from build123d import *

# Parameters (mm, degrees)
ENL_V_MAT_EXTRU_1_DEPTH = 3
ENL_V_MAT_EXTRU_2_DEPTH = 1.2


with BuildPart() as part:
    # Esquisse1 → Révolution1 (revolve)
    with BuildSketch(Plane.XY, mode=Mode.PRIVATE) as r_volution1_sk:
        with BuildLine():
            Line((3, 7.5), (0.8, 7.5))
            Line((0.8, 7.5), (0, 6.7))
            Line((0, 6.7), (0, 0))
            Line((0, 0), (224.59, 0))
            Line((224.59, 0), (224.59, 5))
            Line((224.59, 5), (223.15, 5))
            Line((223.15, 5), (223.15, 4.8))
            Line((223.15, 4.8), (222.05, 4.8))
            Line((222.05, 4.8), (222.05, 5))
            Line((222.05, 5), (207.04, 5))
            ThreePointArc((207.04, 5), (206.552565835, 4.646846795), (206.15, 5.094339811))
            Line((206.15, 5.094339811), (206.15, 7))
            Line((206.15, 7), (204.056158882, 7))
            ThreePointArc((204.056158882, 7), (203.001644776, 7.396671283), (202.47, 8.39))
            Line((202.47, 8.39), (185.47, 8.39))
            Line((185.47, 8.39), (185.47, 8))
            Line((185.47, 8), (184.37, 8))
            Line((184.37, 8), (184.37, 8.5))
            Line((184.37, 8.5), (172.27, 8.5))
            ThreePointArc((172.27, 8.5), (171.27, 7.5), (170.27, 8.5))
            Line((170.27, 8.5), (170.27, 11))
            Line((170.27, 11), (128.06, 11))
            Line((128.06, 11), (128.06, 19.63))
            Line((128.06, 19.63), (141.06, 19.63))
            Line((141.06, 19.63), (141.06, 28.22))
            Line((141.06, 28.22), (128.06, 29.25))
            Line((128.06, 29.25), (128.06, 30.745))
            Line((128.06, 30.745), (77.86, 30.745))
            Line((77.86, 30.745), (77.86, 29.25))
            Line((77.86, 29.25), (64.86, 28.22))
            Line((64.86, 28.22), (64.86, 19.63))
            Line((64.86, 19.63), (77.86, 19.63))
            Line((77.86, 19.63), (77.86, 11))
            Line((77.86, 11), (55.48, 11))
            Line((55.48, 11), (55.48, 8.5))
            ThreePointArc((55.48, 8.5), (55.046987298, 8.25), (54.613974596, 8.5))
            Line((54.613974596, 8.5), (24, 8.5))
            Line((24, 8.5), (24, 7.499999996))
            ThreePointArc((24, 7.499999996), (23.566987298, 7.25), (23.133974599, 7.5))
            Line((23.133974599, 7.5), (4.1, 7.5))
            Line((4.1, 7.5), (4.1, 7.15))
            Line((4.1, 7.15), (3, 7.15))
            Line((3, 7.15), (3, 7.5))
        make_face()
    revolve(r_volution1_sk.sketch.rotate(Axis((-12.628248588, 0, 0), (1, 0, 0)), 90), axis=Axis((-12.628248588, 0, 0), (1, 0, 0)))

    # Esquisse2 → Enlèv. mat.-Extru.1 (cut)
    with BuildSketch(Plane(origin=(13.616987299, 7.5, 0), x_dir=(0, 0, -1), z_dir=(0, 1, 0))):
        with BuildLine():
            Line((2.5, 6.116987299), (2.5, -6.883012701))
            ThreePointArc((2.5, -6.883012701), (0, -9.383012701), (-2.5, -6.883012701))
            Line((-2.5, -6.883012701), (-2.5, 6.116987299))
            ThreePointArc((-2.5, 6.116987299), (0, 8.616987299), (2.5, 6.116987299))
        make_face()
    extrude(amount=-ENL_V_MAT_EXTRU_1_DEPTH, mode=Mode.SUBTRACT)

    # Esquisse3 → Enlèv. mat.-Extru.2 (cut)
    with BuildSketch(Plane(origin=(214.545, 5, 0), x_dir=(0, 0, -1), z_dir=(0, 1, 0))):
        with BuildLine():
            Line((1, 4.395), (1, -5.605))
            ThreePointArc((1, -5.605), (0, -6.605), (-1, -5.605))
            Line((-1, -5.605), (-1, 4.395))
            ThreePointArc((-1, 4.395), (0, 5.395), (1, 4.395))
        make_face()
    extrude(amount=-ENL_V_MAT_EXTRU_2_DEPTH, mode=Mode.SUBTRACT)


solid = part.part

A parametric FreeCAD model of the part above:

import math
import FreeCAD as App
import Part
import Sketcher

V = App.Vector
Q = App.Units.Quantity

doc = App.newDocument("Part")
body = doc.addObject("PartDesign::Body", "Body")

sketch1 = body.newObject("Sketcher::SketchObject", "Sketch")
sketch1.AttachmentSupport = (doc.getObject("XY_Plane"), [""])
sketch1.MapMode = "FlatFace"
sketch1.addGeometry(Part.LineSegment(V(3, 7.5, 0), V(0.8, 7.5, 0)), False)
sketch1.addGeometry(Part.LineSegment(V(0.8, 7.5, 0), V(0, 6.7, 0)), False)
sketch1.addGeometry(Part.LineSegment(V(0, 6.7, 0), V(0, 0, 0)), False)
sketch1.addGeometry(Part.LineSegment(V(0, 0, 0), V(224.59, 0, 0)), False)
sketch1.addGeometry(Part.LineSegment(V(224.59, 0, 0), V(224.59, 5, 0)), False)
sketch1.addGeometry(Part.LineSegment(V(224.59, 5, 0), V(223.15, 5, 0)), False)
sketch1.addGeometry(Part.LineSegment(V(223.15, 5, 0), V(223.15, 4.8, 0)), False)
sketch1.addGeometry(Part.LineSegment(V(223.15, 4.8, 0), V(222.05, 4.8, 0)), False)
sketch1.addGeometry(Part.LineSegment(V(222.05, 4.8, 0), V(222.05, 5, 0)), False)
sketch1.addGeometry(Part.LineSegment(V(222.05, 5, 0), V(207.04, 5, 0)), False)
sketch1.addGeometry(Part.ArcOfCircle(Part.Circle(V(206.6, 5.09434, 0), V(0, 0, 1), 0.45), math.radians(-180), math.radians(-12.101492)), False)
sketch1.addGeometry(Part.LineSegment(V(206.15, 5.09434, 0), V(206.15, 7, 0)), False)
sketch1.addGeometry(Part.LineSegment(V(206.15, 7, 0), V(204.056159, 7, 0)), False)
sketch1.addGeometry(Part.ArcOfCircle(Part.Circle(V(204.056159, 8.6, 0), V(0, 0, 1), 1.6), math.radians(-172.458169), math.radians(-90)), False)
sketch1.addGeometry(Part.LineSegment(V(202.47, 8.39, 0), V(185.47, 8.39, 0)), False)
sketch1.addGeometry(Part.LineSegment(V(185.47, 8.39, 0), V(185.47, 8, 0)), False)
sketch1.addGeometry(Part.LineSegment(V(185.47, 8, 0), V(184.37, 8, 0)), False)
sketch1.addGeometry(Part.LineSegment(V(184.37, 8, 0), V(184.37, 8.5, 0)), False)
sketch1.addGeometry(Part.LineSegment(V(184.37, 8.5, 0), V(172.27, 8.5, 0)), False)
sketch1.addGeometry(Part.ArcOfCircle(Part.Circle(V(171.27, 8.5, 0), V(0, 0, 1), 1), math.radians(180), math.radians(360)), False)
sketch1.addGeometry(Part.LineSegment(V(170.27, 8.5, 0), V(170.27, 11, 0)), False)
sketch1.addGeometry(Part.LineSegment(V(170.27, 11, 0), V(128.06, 11, 0)), False)
sketch1.addGeometry(Part.LineSegment(V(128.06, 11, 0), V(128.06, 19.63, 0)), False)
sketch1.addGeometry(Part.LineSegment(V(128.06, 19.63, 0), V(141.06, 19.63, 0)), False)
sketch1.addGeometry(Part.LineSegment(V(141.06, 19.63, 0), V(141.06, 28.22, 0)), False)
sketch1.addGeometry(Part.LineSegment(V(141.06, 28.22, 0), V(128.06, 29.25, 0)), False)
sketch1.addGeometry(Part.LineSegment(V(128.06, 29.25, 0), V(128.06, 30.745, 0)), False)
sketch1.addGeometry(Part.LineSegment(V(128.06, 30.745, 0), V(77.86, 30.745, 0)), False)
sketch1.addGeometry(Part.LineSegment(V(77.86, 30.745, 0), V(77.86, 29.25, 0)), False)
sketch1.addGeometry(Part.LineSegment(V(77.86, 29.25, 0), V(64.86, 28.22, 0)), False)
sketch1.addGeometry(Part.LineSegment(V(64.86, 28.22, 0), V(64.86, 19.63, 0)), False)
sketch1.addGeometry(Part.LineSegment(V(64.86, 19.63, 0), V(77.86, 19.63, 0)), False)
sketch1.addGeometry(Part.LineSegment(V(77.86, 19.63, 0), V(77.86, 11, 0)), False)
sketch1.addGeometry(Part.LineSegment(V(77.86, 11, 0), V(55.48, 11, 0)), False)
sketch1.addGeometry(Part.LineSegment(V(55.48, 11, 0), V(55.48, 8.5, 0)), False)
sketch1.addGeometry(Part.ArcOfCircle(Part.Circle(V(55.046987, 8.75, 0), V(0, 0, 1), 0.5), math.radians(-150), math.radians(-30)), False)
sketch1.addGeometry(Part.LineSegment(V(54.613975, 8.5, 0), V(24, 8.5, 0)), False)
sketch1.addGeometry(Part.LineSegment(V(24, 8.5, 0), V(24, 7.5, 0)), False)
sketch1.addGeometry(Part.ArcOfCircle(Part.Circle(V(23.566987, 7.75, 0), V(0, 0, 1), 0.5), math.radians(-150), math.radians(-30.000001)), False)
sketch1.addGeometry(Part.LineSegment(V(23.133975, 7.5, 0), V(4.1, 7.5, 0)), False)
sketch1.addGeometry(Part.LineSegment(V(4.1, 7.5, 0), V(4.1, 7.15, 0)), False)
sketch1.addGeometry(Part.LineSegment(V(4.1, 7.15, 0), V(3, 7.15, 0)), False)
sketch1.addGeometry(Part.LineSegment(V(3, 7.15, 0), V(3, 7.5, 0)), False)
sketch1.addConstraint(Sketcher.Constraint("Coincident", 0, 2, 1, 1))
sketch1.addConstraint(Sketcher.Constraint("Coincident", 1, 2, 2, 1))
sketch1.addConstraint(Sketcher.Constraint("Coincident", 2, 2, 3, 1))
sketch1.addConstraint(Sketcher.Constraint("Coincident", 3, 2, 4, 1))
sketch1.addConstraint(Sketcher.Constraint("Coincident", 4, 2, 5, 1))
sketch1.addConstraint(Sketcher.Constraint("Coincident", 5, 2, 6, 1))
sketch1.addConstraint(Sketcher.Constraint("Coincident", 6, 2, 7, 1))
sketch1.addConstraint(Sketcher.Constraint("Coincident", 7, 2, 8, 1))
sketch1.addConstraint(Sketcher.Constraint("Coincident", 8, 2, 9, 1))
sketch1.addConstraint(Sketcher.Constraint("Coincident", 9, 2, 10, 2))
sketch1.addConstraint(Sketcher.Constraint("Tangent", 10, 1, 11, 1))
sketch1.addConstraint(Sketcher.Constraint("Coincident", 11, 2, 12, 1))
sketch1.addConstraint(Sketcher.Constraint("Tangent", 12, 2, 13, 2))
sketch1.addConstraint(Sketcher.Constraint("Coincident", 13, 1, 14, 1))
sketch1.addConstraint(Sketcher.Constraint("Coincident", 14, 2, 15, 1))
sketch1.addConstraint(Sketcher.Constraint("Coincident", 15, 2, 16, 1))
sketch1.addConstraint(Sketcher.Constraint("Coincident", 16, 2, 17, 1))
sketch1.addConstraint(Sketcher.Constraint("Coincident", 17, 2, 18, 1))
sketch1.addConstraint(Sketcher.Constraint("Coincident", 18, 2, 19, 2))
sketch1.addConstraint(Sketcher.Constraint("Tangent", 19, 1, 20, 1))
sketch1.addConstraint(Sketcher.Constraint("Coincident", 20, 2, 21, 1))
sketch1.addConstraint(Sketcher.Constraint("Coincident", 21, 2, 22, 1))
sketch1.addConstraint(Sketcher.Constraint("Coincident", 22, 2, 23, 1))
sketch1.addConstraint(Sketcher.Constraint("Coincident", 23, 2, 24, 1))
sketch1.addConstraint(Sketcher.Constraint("Coincident", 24, 2, 25, 1))
sketch1.addConstraint(Sketcher.Constraint("Coincident", 25, 2, 26, 1))
sketch1.addConstraint(Sketcher.Constraint("Coincident", 26, 2, 27, 1))
sketch1.addConstraint(Sketcher.Constraint("Coincident", 27, 2, 28, 1))
sketch1.addConstraint(Sketcher.Constraint("Coincident", 28, 2, 29, 1))
sketch1.addConstraint(Sketcher.Constraint("Coincident", 29, 2, 30, 1))
sketch1.addConstraint(Sketcher.Constraint("Coincident", 30, 2, 31, 1))
sketch1.addConstraint(Sketcher.Constraint("Coincident", 31, 2, 32, 1))
sketch1.addConstraint(Sketcher.Constraint("Coincident", 32, 2, 33, 1))
sketch1.addConstraint(Sketcher.Constraint("Coincident", 33, 2, 34, 1))
sketch1.addConstraint(Sketcher.Constraint("Coincident", 34, 2, 35, 2))
sketch1.addConstraint(Sketcher.Constraint("Coincident", 35, 1, 36, 1))
sketch1.addConstraint(Sketcher.Constraint("Coincident", 36, 2, 37, 1))
sketch1.addConstraint(Sketcher.Constraint("Coincident", 37, 2, 38, 2))
sketch1.addConstraint(Sketcher.Constraint("Coincident", 38, 1, 39, 1))
sketch1.addConstraint(Sketcher.Constraint("Coincident", 39, 2, 40, 1))
sketch1.addConstraint(Sketcher.Constraint("Coincident", 40, 2, 41, 1))
sketch1.addConstraint(Sketcher.Constraint("Coincident", 41, 2, 42, 1))
sketch1.addConstraint(Sketcher.Constraint("Coincident", 42, 2, 0, 1))
sketch1.addConstraint(Sketcher.Constraint("Horizontal", 0))
sketch1.addConstraint(Sketcher.Constraint("Vertical", 2))
sketch1.addConstraint(Sketcher.Constraint("Horizontal", 3))
sketch1.addConstraint(Sketcher.Constraint("Vertical", 4))
sketch1.addConstraint(Sketcher.Constraint("Horizontal", 5))
sketch1.addConstraint(Sketcher.Constraint("Vertical", 6))
sketch1.addConstraint(Sketcher.Constraint("Horizontal", 7))
sketch1.addConstraint(Sketcher.Constraint("Vertical", 8))
sketch1.addConstraint(Sketcher.Constraint("Horizontal", 9))
sketch1.addConstraint(Sketcher.Constraint("Vertical", 11))
sketch1.addConstraint(Sketcher.Constraint("Horizontal", 12))
sketch1.addConstraint(Sketcher.Constraint("Horizontal", 14))
sketch1.addConstraint(Sketcher.Constraint("Vertical", 15))
sketch1.addConstraint(Sketcher.Constraint("Horizontal", 16))
sketch1.addConstraint(Sketcher.Constraint("Vertical", 17))
sketch1.addConstraint(Sketcher.Constraint("Horizontal", 18))
sketch1.addConstraint(Sketcher.Constraint("Vertical", 20))
sketch1.addConstraint(Sketcher.Constraint("Horizontal", 21))
sketch1.addConstraint(Sketcher.Constraint("Vertical", 22))
sketch1.addConstraint(Sketcher.Constraint("Horizontal", 23))
sketch1.addConstraint(Sketcher.Constraint("Vertical", 24))
sketch1.addConstraint(Sketcher.Constraint("Vertical", 26))
sketch1.addConstraint(Sketcher.Constraint("Horizontal", 27))
sketch1.addConstraint(Sketcher.Constraint("Vertical", 28))
sketch1.addConstraint(Sketcher.Constraint("Vertical", 30))
sketch1.addConstraint(Sketcher.Constraint("Horizontal", 31))
sketch1.addConstraint(Sketcher.Constraint("Vertical", 32))
sketch1.addConstraint(Sketcher.Constraint("Horizontal", 33))
sketch1.addConstraint(Sketcher.Constraint("Vertical", 34))
sketch1.addConstraint(Sketcher.Constraint("Horizontal", 36))
sketch1.addConstraint(Sketcher.Constraint("Vertical", 37))
sketch1.addConstraint(Sketcher.Constraint("Horizontal", 39))
sketch1.addConstraint(Sketcher.Constraint("Vertical", 40))
sketch1.addConstraint(Sketcher.Constraint("Horizontal", 41))
sketch1.addConstraint(Sketcher.Constraint("Vertical", 42))
sketch1.addConstraint(Sketcher.Constraint("Coincident", 2, 2, -1, 1))
sketch1.addConstraint(Sketcher.Constraint("Equal", 35, 38))
sketch1.addConstraint(Sketcher.Constraint("Horizontal", 5, 2, 8, 2))
sketch1.addConstraint(Sketcher.Constraint("Horizontal", 19, 3, 17, 2))
sketch1.addConstraint(Sketcher.Constraint("Horizontal", 25, 2, 28, 2))
sketch1.addConstraint(Sketcher.Constraint("Horizontal", 24, 2, 29, 2))
sketch1.addConstraint(Sketcher.Constraint("Horizontal", 23, 2, 30, 2))
sketch1.addConstraint(Sketcher.Constraint("Horizontal", 21, 2, 32, 2))
sketch1.addConstraint(Sketcher.Constraint("Horizontal", 19, 1, 34, 2))
sketch1.addConstraint(Sketcher.Constraint("Horizontal", 34, 2, 35, 1))
sketch1.addConstraint(Sketcher.Constraint("Horizontal", 0, 2, 37, 2))
sketch1.addConstraint(Sketcher.Constraint("Horizontal", 37, 2, 38, 1))
sketch1.addConstraint(Sketcher.Constraint("Vertical", 22, 2, 25, 2))
sketch1.addConstraint(Sketcher.Constraint("Vertical", 28, 2, 31, 2))
sketch1.addConstraint(Sketcher.Constraint("Equal", 7, 16))
sketch1.addConstraint(Sketcher.Constraint("Equal", 23, 31))
sketch1.addConstraint(Sketcher.Constraint("Equal", 16, 41))
sketch1.addConstraint(Sketcher.Constraint("Radius", 19, Q("1 mm")))
sketch1.addConstraint(Sketcher.Constraint("Radius", 13, Q("1.6 mm")))
sketch1.addConstraint(Sketcher.Constraint("Radius", 35, Q("0.5 mm")))
sketch1.addConstraint(Sketcher.Constraint("DistanceX", 14, 2, 14, 1, Q("17 mm")))
sketch1.addConstraint(Sketcher.Constraint("DistanceX", 23, 1, 23, 2, Q("13 mm")))
sketch1.addConstraint(Sketcher.Constraint("DistanceY", 4, 1, 4, 2, Q("5 mm")))
sketch1.addConstraint(Sketcher.Constraint("DistanceY", 37, 2, 37, 1, Q("1 mm")))
sketch1.addConstraint(Sketcher.Constraint("Angle", 1, Q("-135 deg")))
sketch1.addConstraint(Sketcher.Constraint("Radius", 10, Q("0.45 mm")))
sketch1.addConstraint(Sketcher.Constraint("DistanceX", 0, 2, 0, 1, Q("2.2 mm")))
sketch1.addConstraint(Sketcher.Constraint("DistanceX", 7, 2, 7, 1, Q("1.1 mm")))
sketch1.addConstraint(Sketcher.Constraint("DistanceX", 18, 2, 18, 1, Q("12.1 mm")))
sketch1.addConstraint(Sketcher.Constraint("DistanceX", 27, 2, 27, 1, Q("50.2 mm")))
sketch1.addConstraint(Sketcher.Constraint("DistanceY", 2, 2, 2, 1, Q("6.7 mm")))
sketch1.addConstraint(Sketcher.Constraint("DistanceY", 6, 2, 6, 1, Q("0.2 mm")))
sketch1.addConstraint(Sketcher.Constraint("DistanceY", 17, 1, 17, 2, Q("0.5 mm")))
sketch1.addConstraint(Sketcher.Constraint("DistanceY", 20, 1, 20, 2, Q("2.5 mm")))
sketch1.addConstraint(Sketcher.Constraint("DistanceY", -1, 1, 11, 2, Q("7 mm")))
sketch1.addConstraint(Sketcher.Constraint("DistanceY", -1, 1, 15, 2, Q("8 mm")))
sketch1.addConstraint(Sketcher.Constraint("DistanceX", -1, 1, 36, 2, Q("24 mm")))
sketch1.addConstraint(Sketcher.Constraint("DistanceY", 38, 3, 35, 3, Q("1 mm")))
sketch1.addConstraint(Sketcher.Constraint("DistanceX", 3, 1, 3, 2, Q("224.59 mm")))
sketch1.addConstraint(Sketcher.Constraint("DistanceX", 5, 2, 5, 1, Q("1.44 mm")))
sketch1.addConstraint(Sketcher.Constraint("DistanceX", 9, 2, 9, 1, Q("15.01 mm")))
sketch1.addConstraint(Sketcher.Constraint("DistanceX", 21, 2, 21, 1, Q("42.21 mm")))
sketch1.addConstraint(Sketcher.Constraint("DistanceX", 33, 2, 33, 1, Q("22.38 mm")))
sketch1.addConstraint(Sketcher.Constraint("DistanceY", 15, 2, 15, 1, Q("0.39 mm")))
sketch1.addConstraint(Sketcher.Constraint("DistanceY", 22, 1, 22, 2, Q("8.63 mm")))
sketch1.addConstraint(Sketcher.Constraint("DistanceY", 24, 1, 24, 2, Q("8.59 mm")))
sketch1.addConstraint(Sketcher.Constraint("DistanceY", 40, 2, 40, 1, Q("0.35 mm")))
sketch1.addConstraint(Sketcher.Constraint("DistanceX", -1, 1, 10, 3, Q("206.6 mm")))
sketch1.addConstraint(Sketcher.Constraint("DistanceY", 35, 3, 28, 2, Q("20.5 mm")))
sketch1.addConstraint(Sketcher.Constraint("DistanceY", 26, 1, 26, 2, Q("1.495 mm")))
sketch1.addConstraint(Sketcher.Constraint("DistanceX", -1, 1, 19, 3, Q("171.27 mm")))
sketch1.addConstraint(Sketcher.Constraint("DistanceY", -1, 1, 35, 3, Q("8.75 mm")))
revolution = body.newObject("PartDesign::Revolution", "Revolution")
revolution.Profile = sketch1
revolution.ReferenceAxis = (sketch1, ["H_Axis"])
revolution.Angle = 360

sketch2 = body.newObject("Sketcher::SketchObject", "Sketch001")
sketch2.AttachmentSupport = (doc.getObject("XZ_Plane"), [""])
sketch2.MapMode = "FlatFace"
sketch2.AttachmentOffset = App.Placement(V(0, 0, -7.5), App.Rotation())
sketch2.addGeometry(Part.LineSegment(V(20.5, -2.5, 0), V(7.5, -2.5, 0)), False)
sketch2.addGeometry(Part.ArcOfCircle(Part.Circle(V(7.5, 0, 0), V(0, 0, 1), 2.5), math.radians(90), math.radians(270)), False)
sketch2.addGeometry(Part.LineSegment(V(7.5, 2.5, 0), V(20.5, 2.5, 0)), False)
sketch2.addGeometry(Part.ArcOfCircle(Part.Circle(V(20.5, 0, 0), V(0, 0, 1), 2.5), math.radians(-90), math.radians(90)), False)
sketch2.addConstraint(Sketcher.Constraint("Tangent", 0, 2, 1, 2))
sketch2.addConstraint(Sketcher.Constraint("Tangent", 1, 1, 2, 1))
sketch2.addConstraint(Sketcher.Constraint("Tangent", 2, 2, 3, 2))
sketch2.addConstraint(Sketcher.Constraint("Tangent", 3, 1, 0, 1))
sketch2.addConstraint(Sketcher.Constraint("Horizontal", 0))
sketch2.addConstraint(Sketcher.Constraint("Horizontal", 2))
sketch2.addConstraint(Sketcher.Constraint("PointOnObject", 1, 3, -1))
sketch2.addConstraint(Sketcher.Constraint("Radius", 1, Q("2.5 mm")))
sketch2.addConstraint(Sketcher.Constraint("DistanceX", 0, 2, 0, 1, Q("13 mm")))
sketch2.addConstraint(Sketcher.Constraint("DistanceX", -1, 1, 1, 3, Q("7.5 mm")))
pocket1 = body.newObject("PartDesign::Pocket", "Pocket")
pocket1.Profile = sketch2
pocket1.Length = 3
pocket1.Reversed = True

sketch3 = body.newObject("Sketcher::SketchObject", "Sketch002")
sketch3.AttachmentSupport = (doc.getObject("XZ_Plane"), [""])
sketch3.MapMode = "FlatFace"
sketch3.AttachmentOffset = App.Placement(V(0, 0, -5), App.Rotation())
sketch3.addGeometry(Part.LineSegment(V(220.15, -1, 0), V(210.15, -1, 0)), False)
sketch3.addGeometry(Part.ArcOfCircle(Part.Circle(V(210.15, 0, 0), V(0, 0, 1), 1), math.radians(90), math.radians(270)), False)
sketch3.addGeometry(Part.LineSegment(V(210.15, 1, 0), V(220.15, 1, 0)), False)
sketch3.addGeometry(Part.ArcOfCircle(Part.Circle(V(220.15, 0, 0), V(0, 0, 1), 1), math.radians(-90), math.radians(90)), False)
sketch3.addConstraint(Sketcher.Constraint("Tangent", 0, 2, 1, 2))
sketch3.addConstraint(Sketcher.Constraint("Tangent", 1, 1, 2, 1))
sketch3.addConstraint(Sketcher.Constraint("Tangent", 2, 2, 3, 2))
sketch3.addConstraint(Sketcher.Constraint("Tangent", 3, 1, 0, 1))
sketch3.addConstraint(Sketcher.Constraint("Horizontal", 0))
sketch3.addConstraint(Sketcher.Constraint("Horizontal", 2))
sketch3.addConstraint(Sketcher.Constraint("PointOnObject", 1, 3, -1))
sketch3.addConstraint(Sketcher.Constraint("Radius", 1, Q("1 mm")))
sketch3.addConstraint(Sketcher.Constraint("DistanceX", 0, 2, 0, 1, Q("10 mm")))
sketch3.addConstraint(Sketcher.Constraint("DistanceX", -1, 1, 1, 3, Q("210.15 mm")))
pocket2 = body.newObject("PartDesign::Pocket", "Pocket001")
pocket2.Profile = sketch3
pocket2.Length = 1.2
pocket2.Reversed = True

doc.recompute()
